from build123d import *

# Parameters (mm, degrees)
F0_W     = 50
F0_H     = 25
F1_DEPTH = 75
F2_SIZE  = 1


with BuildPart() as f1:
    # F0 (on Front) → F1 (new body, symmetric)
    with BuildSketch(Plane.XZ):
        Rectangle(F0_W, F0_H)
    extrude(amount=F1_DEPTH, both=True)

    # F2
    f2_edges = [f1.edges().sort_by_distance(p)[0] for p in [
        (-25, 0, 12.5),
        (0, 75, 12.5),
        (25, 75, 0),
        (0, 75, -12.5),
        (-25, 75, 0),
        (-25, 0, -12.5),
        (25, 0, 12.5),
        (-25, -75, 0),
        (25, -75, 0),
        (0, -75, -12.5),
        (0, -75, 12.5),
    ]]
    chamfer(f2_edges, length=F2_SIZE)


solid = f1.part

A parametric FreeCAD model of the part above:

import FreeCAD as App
import Part
import Sketcher

V = App.Vector
Q = App.Units.Quantity


def edges_at(feature, points):
    """Names of the edges that pass closest to the given points."""
    edges = feature.Shape.Edges
    near = lambda p: min(range(len(edges)), key=lambda i: edges[i].distToShape(Part.Vertex(*p))[0])
    return sorted({f"Edge{near(p) + 1}" for p in points})


def add_polygon(sketch, points):
    """Adds a closed chain of lines whose ends are joined by coincident constraints."""
    first, n = sketch.GeometryCount, len(points)
    for a, b in zip(points, points[1:] + points[:1]):
        sketch.addGeometry(Part.LineSegment(App.Vector(*a, 0), App.Vector(*b, 0)), False)
    for i in range(n):
        sketch.addConstraint(Sketcher.Constraint("Coincident", first + i, 2, first + (i + 1) % n, 1))

doc = App.newDocument("Part")
body = doc.addObject("PartDesign::Body", "Body")

sketch1 = body.newObject("Sketcher::SketchObject", "Sketch")
sketch1.AttachmentSupport = (doc.getObject("XZ_Plane"), [""])
sketch1.MapMode = "FlatFace"
add_polygon(sketch1, [(-25, 12), (-25, -12), (25, -12), (25, 12)])
sketch1.addConstraint([
    Sketcher.Constraint("Vertical", 0),
    Sketcher.Constraint("Horizontal", 1),
    Sketcher.Constraint("Vertical", 2),
    Sketcher.Constraint("Horizontal", 3),
    Sketcher.Constraint("Symmetric", 0, 2, 2, 2, -1, 1),
    Sketcher.Constraint("DistanceX", 1, 1, 1, 2, Q("50 mm")),
    Sketcher.Constraint("DistanceY", 0, 2, 0, 1, Q("25 mm")),
])
pad1 = body.newObject("PartDesign::Pad", "Pad")
pad1.Profile = sketch1
pad1.Length = 150
pad1.Midplane = True
doc.recompute()

chamfer = body.newObject("PartDesign::Chamfer", "Chamfer")
chamfer.Base = (pad1, edges_at(pad1, [
    (-25, 0, 12.5),
    (0, 75, 12.5),
    (25, 75, 0),
    (0, 75, -12.5),
    (-25, 75, 0),
    (-25, 0, -12.5),
    (25, 0, 12.5),
    (-25, -75, 0),
    (25, -75, 0),
    (0, -75, -12.5),
    (0, -75, 12.5),
]))
chamfer.Size = 1

doc.recompute()
